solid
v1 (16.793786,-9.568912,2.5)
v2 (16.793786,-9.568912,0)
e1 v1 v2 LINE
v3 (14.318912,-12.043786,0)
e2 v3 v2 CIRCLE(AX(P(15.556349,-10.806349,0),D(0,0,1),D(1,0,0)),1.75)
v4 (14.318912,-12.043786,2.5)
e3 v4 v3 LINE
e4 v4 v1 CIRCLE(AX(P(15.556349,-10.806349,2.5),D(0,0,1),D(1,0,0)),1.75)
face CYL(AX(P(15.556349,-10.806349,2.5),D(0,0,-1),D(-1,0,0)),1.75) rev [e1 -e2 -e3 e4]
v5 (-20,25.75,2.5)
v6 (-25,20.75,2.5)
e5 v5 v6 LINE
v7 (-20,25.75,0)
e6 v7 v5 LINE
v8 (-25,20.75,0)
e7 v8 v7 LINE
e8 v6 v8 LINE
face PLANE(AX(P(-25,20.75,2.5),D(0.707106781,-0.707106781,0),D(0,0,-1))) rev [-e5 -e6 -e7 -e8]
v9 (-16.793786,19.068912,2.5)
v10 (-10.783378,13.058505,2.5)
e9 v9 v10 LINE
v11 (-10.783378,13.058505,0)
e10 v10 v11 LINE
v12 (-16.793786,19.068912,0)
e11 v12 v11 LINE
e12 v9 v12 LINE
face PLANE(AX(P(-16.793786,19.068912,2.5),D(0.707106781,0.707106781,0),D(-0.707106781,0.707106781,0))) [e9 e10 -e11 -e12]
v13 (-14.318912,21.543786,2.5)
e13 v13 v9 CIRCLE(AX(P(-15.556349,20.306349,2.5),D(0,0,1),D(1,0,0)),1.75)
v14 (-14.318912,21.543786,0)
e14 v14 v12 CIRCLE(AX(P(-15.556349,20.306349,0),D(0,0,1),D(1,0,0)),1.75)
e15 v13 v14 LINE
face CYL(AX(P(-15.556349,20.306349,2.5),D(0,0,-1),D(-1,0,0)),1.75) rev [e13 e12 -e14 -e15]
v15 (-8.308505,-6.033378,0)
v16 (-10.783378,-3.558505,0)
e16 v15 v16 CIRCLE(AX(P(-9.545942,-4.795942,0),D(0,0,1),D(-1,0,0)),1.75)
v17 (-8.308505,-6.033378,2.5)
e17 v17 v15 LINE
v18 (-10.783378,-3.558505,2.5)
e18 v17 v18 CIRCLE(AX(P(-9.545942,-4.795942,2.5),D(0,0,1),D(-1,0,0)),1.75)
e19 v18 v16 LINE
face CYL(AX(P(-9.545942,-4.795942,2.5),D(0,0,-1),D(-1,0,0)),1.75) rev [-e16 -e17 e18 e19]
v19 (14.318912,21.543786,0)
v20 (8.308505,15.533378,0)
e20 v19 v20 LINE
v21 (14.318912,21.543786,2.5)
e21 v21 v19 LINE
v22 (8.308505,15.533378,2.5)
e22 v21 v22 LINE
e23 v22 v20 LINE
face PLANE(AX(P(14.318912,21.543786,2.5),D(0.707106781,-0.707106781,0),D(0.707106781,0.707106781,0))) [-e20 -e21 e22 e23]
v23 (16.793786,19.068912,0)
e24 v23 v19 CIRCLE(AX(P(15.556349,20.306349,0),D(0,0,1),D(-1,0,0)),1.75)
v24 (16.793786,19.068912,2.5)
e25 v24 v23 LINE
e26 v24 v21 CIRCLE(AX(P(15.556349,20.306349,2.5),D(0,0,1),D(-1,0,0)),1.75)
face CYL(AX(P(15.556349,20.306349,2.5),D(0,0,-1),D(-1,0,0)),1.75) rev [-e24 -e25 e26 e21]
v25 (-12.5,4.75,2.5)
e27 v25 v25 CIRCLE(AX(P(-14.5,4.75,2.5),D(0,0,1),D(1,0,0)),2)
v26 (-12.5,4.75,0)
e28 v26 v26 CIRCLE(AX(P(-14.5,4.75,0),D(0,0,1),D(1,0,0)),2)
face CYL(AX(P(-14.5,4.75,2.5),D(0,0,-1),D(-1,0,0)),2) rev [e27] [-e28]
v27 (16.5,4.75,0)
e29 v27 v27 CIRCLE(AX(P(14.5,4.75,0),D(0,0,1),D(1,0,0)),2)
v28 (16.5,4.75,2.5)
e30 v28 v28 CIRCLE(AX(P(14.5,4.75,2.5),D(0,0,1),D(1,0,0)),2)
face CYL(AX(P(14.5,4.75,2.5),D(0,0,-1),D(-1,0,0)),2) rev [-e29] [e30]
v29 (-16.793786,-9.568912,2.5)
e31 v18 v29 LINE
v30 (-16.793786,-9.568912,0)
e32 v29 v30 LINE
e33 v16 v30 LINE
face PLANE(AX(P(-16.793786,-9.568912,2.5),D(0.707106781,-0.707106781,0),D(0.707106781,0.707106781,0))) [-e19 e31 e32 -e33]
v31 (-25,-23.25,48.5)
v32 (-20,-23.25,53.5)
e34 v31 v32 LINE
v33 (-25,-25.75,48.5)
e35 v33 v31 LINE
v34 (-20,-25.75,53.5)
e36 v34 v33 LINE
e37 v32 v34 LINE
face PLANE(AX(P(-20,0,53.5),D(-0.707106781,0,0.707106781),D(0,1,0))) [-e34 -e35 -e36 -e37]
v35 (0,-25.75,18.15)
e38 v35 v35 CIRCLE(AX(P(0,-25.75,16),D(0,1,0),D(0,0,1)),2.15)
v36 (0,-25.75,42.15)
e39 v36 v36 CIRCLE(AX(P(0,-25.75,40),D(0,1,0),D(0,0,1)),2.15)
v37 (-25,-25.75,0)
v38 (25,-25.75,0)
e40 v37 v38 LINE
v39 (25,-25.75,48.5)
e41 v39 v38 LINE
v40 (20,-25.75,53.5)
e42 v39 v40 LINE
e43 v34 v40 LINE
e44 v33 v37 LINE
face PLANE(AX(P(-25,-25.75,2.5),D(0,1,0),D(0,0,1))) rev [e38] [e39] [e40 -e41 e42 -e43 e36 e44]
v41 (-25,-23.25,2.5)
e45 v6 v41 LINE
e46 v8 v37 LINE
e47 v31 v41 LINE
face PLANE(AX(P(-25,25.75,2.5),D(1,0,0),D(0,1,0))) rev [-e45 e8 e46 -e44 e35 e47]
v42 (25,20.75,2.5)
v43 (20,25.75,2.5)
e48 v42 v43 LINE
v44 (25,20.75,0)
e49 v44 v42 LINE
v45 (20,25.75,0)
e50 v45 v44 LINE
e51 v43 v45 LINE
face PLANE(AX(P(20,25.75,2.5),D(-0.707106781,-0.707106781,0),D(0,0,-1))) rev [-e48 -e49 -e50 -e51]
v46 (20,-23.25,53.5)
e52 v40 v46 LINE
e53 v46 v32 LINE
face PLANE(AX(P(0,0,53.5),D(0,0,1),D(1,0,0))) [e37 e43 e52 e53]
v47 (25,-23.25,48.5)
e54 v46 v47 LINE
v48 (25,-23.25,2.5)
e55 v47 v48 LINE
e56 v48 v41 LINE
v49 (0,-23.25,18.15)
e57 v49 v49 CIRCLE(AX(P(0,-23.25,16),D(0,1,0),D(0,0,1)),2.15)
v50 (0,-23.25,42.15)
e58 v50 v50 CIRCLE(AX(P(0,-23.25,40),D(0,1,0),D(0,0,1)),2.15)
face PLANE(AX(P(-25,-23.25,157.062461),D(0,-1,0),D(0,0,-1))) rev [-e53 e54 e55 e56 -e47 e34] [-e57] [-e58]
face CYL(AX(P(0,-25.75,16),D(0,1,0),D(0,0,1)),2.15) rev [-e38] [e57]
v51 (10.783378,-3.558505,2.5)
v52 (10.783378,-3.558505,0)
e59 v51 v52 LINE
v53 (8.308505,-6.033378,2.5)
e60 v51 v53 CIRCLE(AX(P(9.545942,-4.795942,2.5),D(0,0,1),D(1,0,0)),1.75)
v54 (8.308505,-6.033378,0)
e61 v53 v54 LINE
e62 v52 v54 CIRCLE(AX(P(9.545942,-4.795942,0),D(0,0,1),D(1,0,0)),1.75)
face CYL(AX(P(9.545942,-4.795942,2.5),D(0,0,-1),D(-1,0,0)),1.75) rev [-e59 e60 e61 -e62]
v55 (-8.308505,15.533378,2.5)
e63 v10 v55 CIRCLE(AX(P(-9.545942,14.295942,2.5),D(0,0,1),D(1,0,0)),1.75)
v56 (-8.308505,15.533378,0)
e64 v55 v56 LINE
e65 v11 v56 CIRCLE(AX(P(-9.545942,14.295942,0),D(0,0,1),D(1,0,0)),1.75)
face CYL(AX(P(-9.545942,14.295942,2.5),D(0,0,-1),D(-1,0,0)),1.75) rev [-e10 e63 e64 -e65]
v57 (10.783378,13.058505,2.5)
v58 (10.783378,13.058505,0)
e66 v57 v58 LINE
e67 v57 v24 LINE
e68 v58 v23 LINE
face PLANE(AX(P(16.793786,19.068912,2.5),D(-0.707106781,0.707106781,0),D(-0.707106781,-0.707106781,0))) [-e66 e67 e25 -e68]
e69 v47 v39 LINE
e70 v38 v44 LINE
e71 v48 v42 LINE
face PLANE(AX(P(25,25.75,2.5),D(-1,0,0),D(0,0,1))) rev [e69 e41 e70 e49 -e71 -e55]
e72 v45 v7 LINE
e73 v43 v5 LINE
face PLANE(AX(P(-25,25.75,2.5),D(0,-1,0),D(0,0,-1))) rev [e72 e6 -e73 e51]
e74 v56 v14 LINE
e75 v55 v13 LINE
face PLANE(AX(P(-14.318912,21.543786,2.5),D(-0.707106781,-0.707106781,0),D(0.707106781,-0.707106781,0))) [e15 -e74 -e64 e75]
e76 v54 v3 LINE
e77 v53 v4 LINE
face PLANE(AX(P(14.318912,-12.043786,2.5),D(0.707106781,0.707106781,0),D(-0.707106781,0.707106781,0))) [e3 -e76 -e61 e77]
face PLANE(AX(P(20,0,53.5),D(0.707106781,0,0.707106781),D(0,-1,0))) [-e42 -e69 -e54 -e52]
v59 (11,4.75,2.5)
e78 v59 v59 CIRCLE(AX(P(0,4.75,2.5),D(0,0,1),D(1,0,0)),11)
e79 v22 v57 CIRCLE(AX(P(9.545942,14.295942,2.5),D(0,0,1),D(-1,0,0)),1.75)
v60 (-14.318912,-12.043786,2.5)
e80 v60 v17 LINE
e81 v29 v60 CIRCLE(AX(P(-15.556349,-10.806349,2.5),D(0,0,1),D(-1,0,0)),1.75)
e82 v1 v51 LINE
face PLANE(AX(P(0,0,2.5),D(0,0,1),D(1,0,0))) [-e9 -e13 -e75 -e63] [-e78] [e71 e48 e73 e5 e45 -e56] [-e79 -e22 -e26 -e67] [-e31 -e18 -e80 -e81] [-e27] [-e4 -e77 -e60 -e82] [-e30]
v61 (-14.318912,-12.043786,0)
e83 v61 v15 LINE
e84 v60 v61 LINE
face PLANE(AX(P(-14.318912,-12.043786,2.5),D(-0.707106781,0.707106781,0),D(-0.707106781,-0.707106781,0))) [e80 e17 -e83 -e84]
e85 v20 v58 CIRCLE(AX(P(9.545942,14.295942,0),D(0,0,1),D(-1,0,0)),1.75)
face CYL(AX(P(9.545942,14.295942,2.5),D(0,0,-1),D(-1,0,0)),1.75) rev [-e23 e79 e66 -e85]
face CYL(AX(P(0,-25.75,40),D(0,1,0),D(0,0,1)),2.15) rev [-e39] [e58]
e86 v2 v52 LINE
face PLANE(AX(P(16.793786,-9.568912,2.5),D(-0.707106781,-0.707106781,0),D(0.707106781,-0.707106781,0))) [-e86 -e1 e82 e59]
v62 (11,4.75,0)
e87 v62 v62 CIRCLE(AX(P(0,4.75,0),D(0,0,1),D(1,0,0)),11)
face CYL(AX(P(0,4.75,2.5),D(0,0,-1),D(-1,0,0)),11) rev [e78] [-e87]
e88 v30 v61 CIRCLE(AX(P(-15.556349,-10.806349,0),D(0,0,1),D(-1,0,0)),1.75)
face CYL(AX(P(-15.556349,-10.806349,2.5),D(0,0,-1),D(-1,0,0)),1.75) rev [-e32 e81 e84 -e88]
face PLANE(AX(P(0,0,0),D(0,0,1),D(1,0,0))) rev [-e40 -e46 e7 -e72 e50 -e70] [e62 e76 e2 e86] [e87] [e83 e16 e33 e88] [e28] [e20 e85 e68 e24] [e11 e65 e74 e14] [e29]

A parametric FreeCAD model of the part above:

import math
import FreeCAD as App
import Part
import Sketcher


def edges_at(feature, points):
    """Names of the edges that pass closest to the given points."""
    edges = feature.Shape.Edges
    near = lambda p: min(range(len(edges)), key=lambda i: edges[i].distToShape(Part.Vertex(*p))[0])
    return sorted({f"Edge{near(p) + 1}" for p in points})


def add_polygon(sketch, points):
    """Adds a closed chain of lines whose ends are joined by coincident constraints."""
    first, n = sketch.GeometryCount, len(points)
    for a, b in zip(points, points[1:] + points[:1]):
        sketch.addGeometry(Part.LineSegment(App.Vector(*a, 0), App.Vector(*b, 0)), False)
    for i in range(n):
        sketch.addConstraint(Sketcher.Constraint("Coincident", first + i, 2, first + (i + 1) % n, 1))

doc = App.newDocument("Part")
body = doc.addObject("PartDesign::Body", "Body")

sketch1 = body.newObject("Sketcher::SketchObject", "Sketch")
sketch1.AttachmentSupport = (doc.getObject("XY_Plane"), [""])
sketch1.MapMode = "FlatFace"
add_polygon(sketch1, [(-25, 25.8), (-25, -25.8), (25, -25.8), (25, 25.8)])
sketch1.addGeometry(Part.LineSegment(App.Vector(-8.3, -6, 0), App.Vector(-14.3, -12, 0)), False)
sketch1.addGeometry(Part.ArcOfCircle(Part.Circle(App.Vector(-15.6, -10.8, 0), App.Vector(0, 0, 1), 1.8), math.radians(135), math.radians(315)), False)
sketch1.addGeometry(Part.LineSegment(App.Vector(-16.8, -9.6, 0), App.Vector(-10.8, -3.6, 0)), False)
sketch1.addGeometry(Part.ArcOfCircle(Part.Circle(App.Vector(-9.5, -4.8, 0), App.Vector(0, 0, 1), 1.8), math.radians(-45), math.radians(135)), False)
sketch1.addGeometry(Part.ArcOfCircle(Part.Circle(App.Vector(15.6, -10.8, 0), App.Vector(0, 0, 1), 1.8), math.radians(-135), math.radians(45)), False)
sketch1.addGeometry(Part.LineSegment(App.Vector(14.3, -12, 0), App.Vector(8.3, -6, 0)), False)
sketch1.addGeometry(Part.ArcOfCircle(Part.Circle(App.Vector(9.5, -4.8, 0), App.Vector(0, 0, 1), 1.8), math.radians(45), math.radians(225)), False)
sketch1.addGeometry(Part.LineSegment(App.Vector(10.8, -3.6, 0), App.Vector(16.8, -9.6, 0)), False)
sketch1.addGeometry(Part.Circle(App.Vector(-14.5, 4.8, 0), App.Vector(0, 0, 1), 2), False)
sketch1.addGeometry(Part.ArcOfCircle(Part.Circle(App.Vector(-15.6, 20.3, 0), App.Vector(0, 0, 1), 1.8), math.radians(45), math.radians(225)), False)
sketch1.addGeometry(Part.LineSegment(App.Vector(-14.3, 21.5, 0), App.Vector(-8.3, 15.5, 0)), False)
sketch1.addGeometry(Part.ArcOfCircle(Part.Circle(App.Vector(-9.5, 14.3, 0), App.Vector(0, 0, 1), 1.8), math.radians(-135), math.radians(45)), False)
sketch1.addGeometry(Part.LineSegment(App.Vector(-10.8, 13.1, 0), App.Vector(-16.8, 19.1, 0)), False)
sketch1.addGeometry(Part.Circle(App.Vector(0, 4.8, 0), App.Vector(0, 0, 1), 11), False)
sketch1.addGeometry(Part.Circle(App.Vector(14.5, 4.8, 0), App.Vector(0, 0, 1), 2), False)
sketch1.addGeometry(Part.LineSegment(App.Vector(8.3, 15.5, 0), App.Vector(14.3, 21.5, 0)), False)
sketch1.addGeometry(Part.ArcOfCircle(Part.Circle(App.Vector(15.6, 20.3, 0), App.Vector(0, 0, 1), 1.8), math.radians(-45), math.radians(135)), False)
sketch1.addGeometry(Part.LineSegment(App.Vector(16.8, 19.1, 0), App.Vector(10.8, 13.1, 0)), False)
sketch1.addGeometry(Part.ArcOfCircle(Part.Circle(App.Vector(9.5, 14.3, 0), App.Vector(0, 0, 1), 1.8), math.radians(135), math.radians(315)), False)
sketch1.addConstraint(Sketcher.Constraint("Tangent", 4, 2, 5, 2))
sketch1.addConstraint(Sketcher.Constraint("Tangent", 5, 1, 6, 1))
sketch1.addConstraint(Sketcher.Constraint("Tangent", 6, 2, 7, 2))
sketch1.addConstraint(Sketcher.Constraint("Tangent", 7, 1, 4, 1))
sketch1.addConstraint(Sketcher.Constraint("Tangent", 8, 1, 9, 1))
sketch1.addConstraint(Sketcher.Constraint("Tangent", 9, 2, 10, 2))
sketch1.addConstraint(Sketcher.Constraint("Tangent", 10, 1, 11, 1))
sketch1.addConstraint(Sketcher.Constraint("Tangent", 11, 2, 8, 2))
sketch1.addConstraint(Sketcher.Constraint("Tangent", 13, 1, 14, 1))
sketch1.addConstraint(Sketcher.Constraint("Tangent", 14, 2, 15, 2))
sketch1.addConstraint(Sketcher.Constraint("Tangent", 15, 1, 16, 1))
sketch1.addConstraint(Sketcher.Constraint("Tangent", 16, 2, 13, 2))
sketch1.addConstraint(Sketcher.Constraint("Tangent", 19, 2, 20, 2))
sketch1.addConstraint(Sketcher.Constraint("Tangent", 20, 1, 21, 1))
sketch1.addConstraint(Sketcher.Constraint("Tangent", 21, 2, 22, 2))
sketch1.addConstraint(Sketcher.Constraint("Tangent", 22, 1, 19, 1))
sketch1.addConstraint(Sketcher.Constraint("Vertical", 0))
sketch1.addConstraint(Sketcher.Constraint("Horizontal", 1))
sketch1.addConstraint(Sketcher.Constraint("Vertical", 2))
sketch1.addConstraint(Sketcher.Constraint("Horizontal", 3))
sketch1.addConstraint(Sketcher.Constraint("Equal", 5, 7))
sketch1.addConstraint(Sketcher.Constraint("Equal", 7, 8))
sketch1.addConstraint(Sketcher.Constraint("Equal", 8, 10))
sketch1.addConstraint(Sketcher.Constraint("Equal", 10, 13))
sketch1.addConstraint(Sketcher.Constraint("Equal", 13, 15))
sketch1.addConstraint(Sketcher.Constraint("Equal", 12, 18))
sketch1.addConstraint(Sketcher.Constraint("Equal", 15, 20))
sketch1.addConstraint(Sketcher.Constraint("Equal", 20, 22))
sketch1.addConstraint(Sketcher.Constraint("Symmetric", 0, 2, 2, 2, -1, 1))
sketch1.addConstraint(Sketcher.Constraint("Symmetric", 5, 3, 8, 3, -2))
sketch1.addConstraint(Sketcher.Constraint("Symmetric", 7, 3, 10, 3, -2))
sketch1.addConstraint(Sketcher.Constraint("Symmetric", 12, 3, 18, 3, -2))
sketch1.addConstraint(Sketcher.Constraint("Symmetric", 13, 3, 20, 3, -2))
sketch1.addConstraint(Sketcher.Constraint("Symmetric", 15, 3, 22, 3, -2))
sketch1.addConstraint(Sketcher.Constraint("PointOnObject", 17, 3, -2))
sketch1.addConstraint(Sketcher.Constraint("Perpendicular", 6, 9))
sketch1.addConstraint(Sketcher.Constraint("Parallel", 11, 14))
sketch1.addConstraint(Sketcher.Constraint("Horizontal", 12, 3, 17, 3))
sketch1.addConstraint(Sketcher.Constraint("Vertical", 5, 3, 13, 3))
sketch1.addConstraint(Sketcher.Constraint("Vertical", 7, 3, 15, 3))
sketch1.addConstraint(Sketcher.Constraint("Diameter", 12, 4.0))
sketch1.addConstraint(Sketcher.Constraint("Diameter", 17, 22.0))
sketch1.addConstraint(Sketcher.Constraint("DistanceX", 1, 1, 1, 2, 50.0))
sketch1.addConstraint(Sketcher.Constraint("Radius", 5, 1.75))
sketch1.addConstraint(Sketcher.Constraint("DistanceY", 0, 2, 0, 1, 51.5))
sketch1.addConstraint(Sketcher.Constraint("DistanceY", 18, 3, 2, 2, 21.0))
sketch1.addConstraint(Sketcher.Constraint("Distance", 4, 8.5))
sketch1.addConstraint(Sketcher.Constraint("DistanceX", 12, 3, -1, 1, 14.5))
sketch1.addConstraint(Sketcher.Constraint("DistanceX", 5, 3, 8, 3, 31.112698))
sketch1.addConstraint(Sketcher.Constraint("DistanceY", 5, 3, 13, 3, 31.112698))
sketch1.addConstraint(Sketcher.Constraint("DistanceY", 5, 3, -1, 1, 10.806349))
pad1 = body.newObject("PartDesign::Pad", "Pad")
pad1.Profile = sketch1
pad1.Length = 2.5

sketch2 = body.newObject("Sketcher::SketchObject", "Sketch001")
sketch2.AttachmentSupport = (doc.getObject("XY_Plane"), [""])
sketch2.MapMode = "FlatFace"
sketch2.AttachmentOffset = App.Placement(App.Vector(0, 0, 2.5), App.Rotation())
add_polygon(sketch2, [(-25, -23.2), (-25, -25.8), (25, -25.8), (25, -23.2)])
sketch2.addConstraint(Sketcher.Constraint("Vertical", 0))
sketch2.addConstraint(Sketcher.Constraint("Horizontal", 1))
sketch2.addConstraint(Sketcher.Constraint("Vertical", 2))
sketch2.addConstraint(Sketcher.Constraint("Horizontal", 3))
sketch2.addConstraint(Sketcher.Constraint("DistanceX", 1, 1, 1, 2, 50.0))
sketch2.addConstraint(Sketcher.Constraint("DistanceY", 0, 2, 0, 1, 2.5))
sketch2.addConstraint(Sketcher.Constraint("DistanceX", 0, 2, -1, 1, 25.0))
sketch2.addConstraint(Sketcher.Constraint("DistanceY", 0, 2, -1, 1, 25.75))
pad2 = body.newObject("PartDesign::Pad", "Pad001")
pad2.Profile = sketch2
pad2.Length = 51

sketch3 = body.newObject("Sketcher::SketchObject", "Sketch002")
sketch3.AttachmentSupport = (doc.getObject("XZ_Plane"), [""])
sketch3.MapMode = "FlatFace"
sketch3.AttachmentOffset = App.Placement(App.Vector(0, 0, 23.25), App.Rotation())
sketch3.addGeometry(Part.Circle(App.Vector(0, 40, 0), App.Vector(0, 0, 1), 2.1), False)
sketch3.addGeometry(Part.Circle(App.Vector(0, 16, 0), App.Vector(0, 0, 1), 2.1), False)
sketch3.addConstraint(Sketcher.Constraint("Equal", 0, 1))
sketch3.addConstraint(Sketcher.Constraint("PointOnObject", 0, 3, -2))
sketch3.addConstraint(Sketcher.Constraint("PointOnObject", 1, 3, -2))
sketch3.addConstraint(Sketcher.Constraint("Diameter", 0, 4.3))
sketch3.addConstraint(Sketcher.Constraint("DistanceY", -1, 1, 0, 3, 40.0))
sketch3.addConstraint(Sketcher.Constraint("DistanceY", -1, 1, 1, 3, 16.0))
pocket1 = body.newObject("PartDesign::Pocket", "Pocket")
pocket1.Profile = sketch3
pocket1.Type = "ThroughAll"
pocket1.Reversed = True
doc.recompute()

chamfer = body.newObject("PartDesign::Chamfer", "Chamfer")
chamfer.Base = (pocket1, edges_at(pocket1, [
    (-25, 25.75, 1.25),
    (25, 25.75, 1.25),
    (-25, -24.5, 53.5),
    (25, -24.5, 53.5),
]))
chamfer.Size = 5

doc.recompute()
